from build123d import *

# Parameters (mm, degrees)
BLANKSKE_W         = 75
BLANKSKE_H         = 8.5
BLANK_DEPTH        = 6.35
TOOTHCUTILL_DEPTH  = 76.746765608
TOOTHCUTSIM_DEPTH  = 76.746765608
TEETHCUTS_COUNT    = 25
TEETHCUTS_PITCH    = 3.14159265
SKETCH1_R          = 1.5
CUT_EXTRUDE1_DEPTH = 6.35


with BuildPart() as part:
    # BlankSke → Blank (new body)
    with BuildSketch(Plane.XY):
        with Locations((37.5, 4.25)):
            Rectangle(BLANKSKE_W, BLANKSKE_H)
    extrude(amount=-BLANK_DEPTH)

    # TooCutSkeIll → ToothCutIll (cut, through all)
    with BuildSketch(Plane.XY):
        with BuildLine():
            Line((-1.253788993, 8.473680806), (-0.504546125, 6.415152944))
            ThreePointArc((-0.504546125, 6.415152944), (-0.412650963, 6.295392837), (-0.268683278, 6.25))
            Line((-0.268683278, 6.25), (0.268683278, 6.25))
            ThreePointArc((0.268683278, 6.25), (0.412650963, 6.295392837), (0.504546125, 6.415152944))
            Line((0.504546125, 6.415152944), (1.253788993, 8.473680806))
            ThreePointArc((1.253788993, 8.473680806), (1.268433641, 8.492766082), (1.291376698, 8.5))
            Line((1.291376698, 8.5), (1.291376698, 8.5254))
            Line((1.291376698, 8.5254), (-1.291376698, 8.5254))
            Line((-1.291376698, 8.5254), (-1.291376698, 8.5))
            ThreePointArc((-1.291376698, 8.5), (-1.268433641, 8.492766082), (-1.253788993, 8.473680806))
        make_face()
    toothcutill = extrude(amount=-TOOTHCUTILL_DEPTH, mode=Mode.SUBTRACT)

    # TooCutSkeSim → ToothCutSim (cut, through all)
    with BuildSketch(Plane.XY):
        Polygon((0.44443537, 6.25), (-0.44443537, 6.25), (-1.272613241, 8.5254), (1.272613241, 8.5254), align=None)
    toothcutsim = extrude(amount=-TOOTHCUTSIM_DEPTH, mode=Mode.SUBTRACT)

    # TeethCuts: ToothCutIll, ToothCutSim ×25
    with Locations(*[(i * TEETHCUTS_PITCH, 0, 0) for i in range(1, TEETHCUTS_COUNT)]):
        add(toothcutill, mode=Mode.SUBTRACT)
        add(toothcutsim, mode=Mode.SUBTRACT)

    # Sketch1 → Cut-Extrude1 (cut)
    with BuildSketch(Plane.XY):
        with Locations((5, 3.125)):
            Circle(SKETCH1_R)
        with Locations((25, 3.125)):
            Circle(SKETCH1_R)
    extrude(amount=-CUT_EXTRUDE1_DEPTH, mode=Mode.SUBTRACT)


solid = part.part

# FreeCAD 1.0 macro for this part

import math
import FreeCAD as App
import Part
import Sketcher
Q = App.Units.Quantity


def add_polygon(sketch, points):
    """Adds a closed chain of lines whose ends are joined by coincident constraints."""
    first, n = sketch.GeometryCount, len(points)
    for a, b in zip(points, points[1:] + points[:1]):
        sketch.addGeometry(Part.LineSegment(App.Vector(*a, 0), App.Vector(*b, 0)), False)
    for i in range(n):
        sketch.addConstraint(Sketcher.Constraint("Coincident", first + i, 2, first + (i + 1) % n, 1))

doc = App.newDocument("Part")
body = doc.addObject("PartDesign::Body", "Body")

# Sketch on XY plane
sketch1 = body.newObject("Sketcher::SketchObject", "Sketch")
sketch1.AttachmentSupport = (doc.getObject("XY_Plane"), [""])
sketch1.MapMode = "FlatFace"
add_polygon(sketch1, [(0, 8.5), (0, 0), (75, 0), (75, 8.5)])  # lines 0-3
sketch1.addConstraint([
    Sketcher.Constraint("Vertical", 0),
    Sketcher.Constraint("Horizontal", 1),
    Sketcher.Constraint("Vertical", 2),
    Sketcher.Constraint("Horizontal", 3),
    Sketcher.Constraint("Coincident", 0, 2, -1, 1),
    Sketcher.Constraint("DistanceX", 1, 1, 1, 2, 75.0),
    Sketcher.Constraint("DistanceY", 0, 2, 0, 1, 8.5),
])
pad1 = body.newObject("PartDesign::Pad", "Pad")
pad1.Profile = sketch1
pad1.Length = 6.35
pad1.Reversed = True

# Sketch on XY plane
sketch2 = body.newObject("Sketcher::SketchObject", "Sketch001")
sketch2.AttachmentSupport = (doc.getObject("XY_Plane"), [""])
sketch2.MapMode = "FlatFace"
sketch2.addGeometry([
    Part.LineSegment(App.Vector(-1.253789, 8.473681, 0), App.Vector(-0.504546, 6.415153, 0)),  # 0
    Part.ArcOfCircle(Part.Circle(App.Vector(-0.268683, 6.501, 0), App.Vector(0, 0, 1), 0.251), math.radians(-160), math.radians(-90)),  # 1
    Part.LineSegment(App.Vector(-0.268683, 6.25, 0), App.Vector(0.268683, 6.25, 0)),  # 2
    Part.ArcOfCircle(Part.Circle(App.Vector(0.268683, 6.501, 0), App.Vector(0, 0, 1), 0.251), math.radians(-90), math.radians(-20)),  # 3
    Part.LineSegment(App.Vector(0.504546, 6.415153, 0), App.Vector(1.253789, 8.473681, 0)),  # 4
    Part.ArcOfCircle(Part.Circle(App.Vector(1.291377, 8.46, 0), App.Vector(0, 0, 1), 0.04), math.radians(90), math.radians(159.999998)),  # 5
    Part.LineSegment(App.Vector(1.291377, 8.5, 0), App.Vector(1.291377, 8.5254, 0)),  # 6
    Part.LineSegment(App.Vector(1.291377, 8.5254, 0), App.Vector(-1.291377, 8.5254, 0)),  # 7
    Part.LineSegment(App.Vector(-1.291377, 8.5254, 0), App.Vector(-1.291377, 8.5, 0)),  # 8
    Part.ArcOfCircle(Part.Circle(App.Vector(-1.291377, 8.46, 0), App.Vector(0, 0, 1), 0.04), math.radians(20.000002), math.radians(90)),  # 9
], False)
sketch2.addConstraint([
    Sketcher.Constraint("Tangent", 0, 2, 1, 1),
    Sketcher.Constraint("Tangent", 1, 2, 2, 1),
    Sketcher.Constraint("Tangent", 2, 2, 3, 1),
    Sketcher.Constraint("Tangent", 3, 2, 4, 1),
    Sketcher.Constraint("Tangent", 4, 2, 5, 2),
    Sketcher.Constraint("Coincident", 5, 1, 6, 1),
    Sketcher.Constraint("Coincident", 6, 2, 7, 1),
    Sketcher.Constraint("Coincident", 7, 2, 8, 1),
    Sketcher.Constraint("Coincident", 8, 2, 9, 2),
    Sketcher.Constraint("Tangent", 9, 1, 0, 1),
    Sketcher.Constraint("Horizontal", 2),
    Sketcher.Constraint("Vertical", 6),
    Sketcher.Constraint("Horizontal", 7),
    Sketcher.Constraint("Vertical", 8),
    Sketcher.Constraint("Equal", 1, 3),
    Sketcher.Constraint("Equal", 5, 9),
    Sketcher.Constraint("Symmetric", 5, 3, 9, 3, -2),
    Sketcher.Constraint("Horizontal", 0, 2, 3, 2),
    Sketcher.Constraint("Vertical", 9, 3, 7, 2),
    Sketcher.Constraint("Angle", 0, Q("-70 deg")),
    Sketcher.Constraint("Radius", 5, 0.04),
    Sketcher.Constraint("Radius", 1, 0.251),
    Sketcher.Constraint("DistanceY", -1, 1, 5, 1, 8.5),
    Sketcher.Constraint("DistanceY", -1, 1, 1, 2, 6.25),
    Sketcher.Constraint("DistanceY", 6, 1, 6, 2, 0.0254),
    Sketcher.Constraint("DistanceX", 2, 1, 2, 2, 0.537367),
    Sketcher.Constraint("DistanceX", 7, 2, 7, 1, 2.582753),
])
pocket1 = body.newObject("PartDesign::Pocket", "Pocket")
pocket1.Profile = sketch2
pocket1.Type = "ThroughAll"

# Sketch on XY plane
sketch3 = body.newObject("Sketcher::SketchObject", "Sketch002")
sketch3.AttachmentSupport = (doc.getObject("XY_Plane"), [""])
sketch3.MapMode = "FlatFace"
add_polygon(sketch3, [(-0.444435, 6.25), (0.444435, 6.25), (1.272613, 8.5254), (-1.272613, 8.5254)])  # lines 0-3
sketch3.addConstraint([
    Sketcher.Constraint("Horizontal", 0),
    Sketcher.Constraint("Horizontal", 2),
    Sketcher.Constraint("Equal", 1, 3),
    Sketcher.Constraint("Angle", 1, Q("70 deg")),
    Sketcher.Constraint("DistanceY", -1, 1, 0, 2, 6.25),
    Sketcher.Constraint("DistanceX", 0, 1, 0, 2, 0.888871),
    Sketcher.Constraint("DistanceY", -1, 1, 1, 2, 8.5254),
    Sketcher.Constraint("DistanceX", -1, 1, 0, 2, 0.444435),
])
pocket2 = body.newObject("PartDesign::Pocket", "Pocket001")
pocket2.Profile = sketch3
pocket2.Type = "ThroughAll"
doc.recompute()

linearpattern = body.newObject("PartDesign::LinearPattern", "LinearPattern")
linearpattern.Originals = [pocket1, pocket2]
linearpattern.Direction = (doc.getObject("X_Axis"), [""])
linearpattern.Mode = "offset"
linearpattern.Offset = 3.141593
linearpattern.Occurrences = 25
body.Tip = linearpattern

# Sketch on XY plane
sketch4 = body.newObject("Sketcher::SketchObject", "Sketch003")
sketch4.AttachmentSupport = (doc.getObject("XY_Plane"), [""])
sketch4.MapMode = "FlatFace"
sketch4.addGeometry([
    Part.Circle(App.Vector(5, 3.125, 0), App.Vector(0, 0, 1), 1.5),
    Part.Circle(App.Vector(25, 3.125, 0), App.Vector(0, 0, 1), 1.5),
], False)
sketch4.addConstraint([
    Sketcher.Constraint("Equal", 0, 1),
    Sketcher.Constraint("Horizontal", 0, 3, 1, 3),
    Sketcher.Constraint("Diameter", 0, 3.0),
    Sketcher.Constraint("DistanceX", -1, 1, 0, 3, 5.0),
    Sketcher.Constraint("DistanceX", -1, 1, 1, 3, 25.0),
    Sketcher.Constraint("DistanceY", -1, 1, 0, 3, 3.125),
])
pocket3 = body.newObject("PartDesign::Pocket", "Pocket002")
pocket3.Profile = sketch4
pocket3.Length = 6.35

doc.recompute()
